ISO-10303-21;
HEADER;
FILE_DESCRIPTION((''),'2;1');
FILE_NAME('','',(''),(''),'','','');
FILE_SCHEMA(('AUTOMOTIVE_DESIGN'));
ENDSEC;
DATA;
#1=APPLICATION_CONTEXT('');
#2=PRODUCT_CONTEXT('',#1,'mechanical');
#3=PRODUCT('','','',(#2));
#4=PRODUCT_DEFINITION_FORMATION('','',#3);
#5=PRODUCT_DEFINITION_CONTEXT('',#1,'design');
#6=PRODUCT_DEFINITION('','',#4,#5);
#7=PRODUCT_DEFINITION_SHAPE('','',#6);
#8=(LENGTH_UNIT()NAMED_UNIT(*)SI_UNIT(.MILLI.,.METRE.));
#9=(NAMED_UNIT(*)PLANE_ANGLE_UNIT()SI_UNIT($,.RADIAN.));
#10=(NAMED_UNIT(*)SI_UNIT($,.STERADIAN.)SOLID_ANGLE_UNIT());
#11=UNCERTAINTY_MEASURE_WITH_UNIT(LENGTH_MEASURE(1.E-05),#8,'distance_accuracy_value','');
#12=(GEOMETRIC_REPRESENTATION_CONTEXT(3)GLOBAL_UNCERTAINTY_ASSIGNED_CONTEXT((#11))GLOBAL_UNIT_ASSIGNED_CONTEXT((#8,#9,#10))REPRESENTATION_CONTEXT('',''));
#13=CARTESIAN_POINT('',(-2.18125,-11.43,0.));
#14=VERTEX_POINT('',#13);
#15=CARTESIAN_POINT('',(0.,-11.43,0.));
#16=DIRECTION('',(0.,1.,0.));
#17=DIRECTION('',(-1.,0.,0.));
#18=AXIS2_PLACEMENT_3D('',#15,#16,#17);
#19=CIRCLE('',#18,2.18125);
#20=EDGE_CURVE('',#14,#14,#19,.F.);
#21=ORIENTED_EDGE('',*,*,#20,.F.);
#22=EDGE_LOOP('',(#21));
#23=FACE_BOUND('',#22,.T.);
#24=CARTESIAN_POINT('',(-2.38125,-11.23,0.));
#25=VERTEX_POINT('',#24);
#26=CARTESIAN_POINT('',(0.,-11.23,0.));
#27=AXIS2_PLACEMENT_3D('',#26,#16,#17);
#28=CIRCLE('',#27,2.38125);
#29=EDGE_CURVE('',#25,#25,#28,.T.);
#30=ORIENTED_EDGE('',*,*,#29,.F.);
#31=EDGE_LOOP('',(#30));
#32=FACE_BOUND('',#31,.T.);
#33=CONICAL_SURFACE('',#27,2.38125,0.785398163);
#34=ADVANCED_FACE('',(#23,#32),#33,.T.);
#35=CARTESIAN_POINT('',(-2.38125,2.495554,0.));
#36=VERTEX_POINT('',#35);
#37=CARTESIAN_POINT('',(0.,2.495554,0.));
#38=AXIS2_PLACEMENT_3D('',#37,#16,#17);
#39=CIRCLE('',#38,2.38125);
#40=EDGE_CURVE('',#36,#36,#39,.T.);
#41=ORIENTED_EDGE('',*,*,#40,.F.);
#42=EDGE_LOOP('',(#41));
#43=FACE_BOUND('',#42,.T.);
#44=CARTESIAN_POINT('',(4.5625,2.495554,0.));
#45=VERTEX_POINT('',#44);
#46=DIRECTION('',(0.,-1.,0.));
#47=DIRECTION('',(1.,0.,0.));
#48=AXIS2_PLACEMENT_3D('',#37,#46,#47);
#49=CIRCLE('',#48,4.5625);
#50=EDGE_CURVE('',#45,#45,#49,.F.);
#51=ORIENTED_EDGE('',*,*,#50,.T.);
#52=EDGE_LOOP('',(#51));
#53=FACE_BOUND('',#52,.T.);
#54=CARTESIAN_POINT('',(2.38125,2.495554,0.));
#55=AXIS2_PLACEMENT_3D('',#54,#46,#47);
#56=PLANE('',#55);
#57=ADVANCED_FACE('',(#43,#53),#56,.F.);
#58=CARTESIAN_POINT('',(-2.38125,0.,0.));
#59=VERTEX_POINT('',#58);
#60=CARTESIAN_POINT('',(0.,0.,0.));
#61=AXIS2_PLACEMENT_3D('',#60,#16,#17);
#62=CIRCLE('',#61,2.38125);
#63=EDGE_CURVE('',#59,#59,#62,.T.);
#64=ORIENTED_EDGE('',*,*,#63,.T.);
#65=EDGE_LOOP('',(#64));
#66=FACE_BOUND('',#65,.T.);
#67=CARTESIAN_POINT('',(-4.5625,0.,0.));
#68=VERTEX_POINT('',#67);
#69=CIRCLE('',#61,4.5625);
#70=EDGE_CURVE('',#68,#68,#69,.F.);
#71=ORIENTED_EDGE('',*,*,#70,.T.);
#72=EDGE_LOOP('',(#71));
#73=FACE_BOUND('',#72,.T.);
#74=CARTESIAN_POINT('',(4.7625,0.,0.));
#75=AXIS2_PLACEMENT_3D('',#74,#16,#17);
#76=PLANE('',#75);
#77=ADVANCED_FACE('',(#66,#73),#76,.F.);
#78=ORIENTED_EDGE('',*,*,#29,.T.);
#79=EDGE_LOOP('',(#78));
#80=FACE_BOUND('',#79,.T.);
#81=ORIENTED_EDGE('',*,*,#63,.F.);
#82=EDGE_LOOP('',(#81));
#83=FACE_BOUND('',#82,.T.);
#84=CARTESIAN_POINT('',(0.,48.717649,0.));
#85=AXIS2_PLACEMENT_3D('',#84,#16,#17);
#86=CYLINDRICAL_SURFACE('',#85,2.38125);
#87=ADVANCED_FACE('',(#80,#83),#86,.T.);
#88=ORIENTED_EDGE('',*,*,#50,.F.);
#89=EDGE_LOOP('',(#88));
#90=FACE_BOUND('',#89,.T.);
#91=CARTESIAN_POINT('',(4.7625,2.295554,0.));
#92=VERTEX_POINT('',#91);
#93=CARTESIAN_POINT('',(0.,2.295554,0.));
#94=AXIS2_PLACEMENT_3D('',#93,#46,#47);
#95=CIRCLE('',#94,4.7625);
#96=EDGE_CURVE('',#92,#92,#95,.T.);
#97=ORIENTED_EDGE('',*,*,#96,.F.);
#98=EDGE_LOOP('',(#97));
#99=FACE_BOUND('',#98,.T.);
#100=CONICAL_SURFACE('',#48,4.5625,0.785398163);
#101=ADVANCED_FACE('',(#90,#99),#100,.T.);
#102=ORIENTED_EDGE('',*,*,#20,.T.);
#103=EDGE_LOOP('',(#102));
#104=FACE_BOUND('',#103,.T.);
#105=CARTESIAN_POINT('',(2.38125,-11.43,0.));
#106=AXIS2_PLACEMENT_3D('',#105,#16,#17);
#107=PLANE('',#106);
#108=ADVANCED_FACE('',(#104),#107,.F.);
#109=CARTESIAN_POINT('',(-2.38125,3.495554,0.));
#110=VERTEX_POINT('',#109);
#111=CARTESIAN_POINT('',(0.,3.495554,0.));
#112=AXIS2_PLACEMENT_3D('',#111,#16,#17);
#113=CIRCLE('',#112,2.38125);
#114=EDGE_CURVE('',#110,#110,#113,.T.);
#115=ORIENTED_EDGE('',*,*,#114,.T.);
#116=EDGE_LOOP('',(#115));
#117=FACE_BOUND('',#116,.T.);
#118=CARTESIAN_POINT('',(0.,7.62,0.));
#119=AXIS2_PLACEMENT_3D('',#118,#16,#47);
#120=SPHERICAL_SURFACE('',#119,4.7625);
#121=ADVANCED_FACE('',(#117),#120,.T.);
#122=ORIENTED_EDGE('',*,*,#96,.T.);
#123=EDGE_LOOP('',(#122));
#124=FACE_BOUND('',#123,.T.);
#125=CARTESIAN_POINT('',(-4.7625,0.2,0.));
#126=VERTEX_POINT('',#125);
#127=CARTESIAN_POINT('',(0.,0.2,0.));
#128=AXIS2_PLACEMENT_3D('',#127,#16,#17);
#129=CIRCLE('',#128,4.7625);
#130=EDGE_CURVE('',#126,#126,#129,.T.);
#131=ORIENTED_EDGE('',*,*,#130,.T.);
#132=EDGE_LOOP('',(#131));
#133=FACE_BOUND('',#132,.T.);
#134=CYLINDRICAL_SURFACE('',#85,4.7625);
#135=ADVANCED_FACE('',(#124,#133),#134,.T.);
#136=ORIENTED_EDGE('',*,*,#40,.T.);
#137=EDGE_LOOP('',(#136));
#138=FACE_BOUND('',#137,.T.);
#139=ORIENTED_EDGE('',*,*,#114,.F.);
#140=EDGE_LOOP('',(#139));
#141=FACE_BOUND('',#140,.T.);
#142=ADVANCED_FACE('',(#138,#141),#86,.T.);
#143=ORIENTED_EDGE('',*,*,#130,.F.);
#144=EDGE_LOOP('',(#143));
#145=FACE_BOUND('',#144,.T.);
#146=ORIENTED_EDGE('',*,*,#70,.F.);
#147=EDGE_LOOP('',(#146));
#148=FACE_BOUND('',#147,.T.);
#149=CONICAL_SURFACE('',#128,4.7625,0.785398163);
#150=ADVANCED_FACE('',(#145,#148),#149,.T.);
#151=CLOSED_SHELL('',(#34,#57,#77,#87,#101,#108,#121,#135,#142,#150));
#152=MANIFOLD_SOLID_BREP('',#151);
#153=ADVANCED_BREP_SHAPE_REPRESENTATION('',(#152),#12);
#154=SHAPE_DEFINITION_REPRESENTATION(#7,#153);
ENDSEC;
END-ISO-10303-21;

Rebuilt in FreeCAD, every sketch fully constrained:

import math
import FreeCAD as App
import Part
import Sketcher
from FreeCAD import Vector
Q = App.Units.Quantity


def edges_at(feature, points):
    """Names of the edges that pass closest to the given points."""
    edges = feature.Shape.Edges
    near = lambda p: min(range(len(edges)), key=lambda i: edges[i].distToShape(Part.Vertex(*p))[0])
    return sorted({f"Edge{near(p) + 1}" for p in points})

doc = App.newDocument("Part")
body = doc.addObject("PartDesign::Body", "Body")

# Sketch on XY plane
sketch1 = body.newObject("Sketcher::SketchObject", "Sketch")
sketch1.AttachmentSupport = (doc.getObject("XY_Plane"), [""])
sketch1.MapMode = "FlatFace"
sketch1.addGeometry([
    Part.LineSegment(Vector(2.4, 2.5, 0), Vector(2.4, 3.5, 0)),  # 0
    Part.ArcOfCircle(Part.Circle(Vector(0, 7.6, 0), Vector(0, 0, 1), 4.8), math.radians(-60), math.radians(90)),  # 1
    Part.LineSegment(Vector(0, 12.4, 0), Vector(0, -11.4, 0)),  # 2
    Part.LineSegment(Vector(0, -11.4, 0), Vector(2.4, -11.4, 0)),  # 3
    Part.LineSegment(Vector(2.4, -11.4, 0), Vector(2.4, 0, 0)),  # 4
    Part.LineSegment(Vector(2.4, 0, 0), Vector(4.8, 0, 0)),  # 5
    Part.LineSegment(Vector(4.8, 0, 0), Vector(4.8, 2.5, 0)),  # 6
    Part.LineSegment(Vector(4.8, 2.5, 0), Vector(2.4, 2.5, 0)),  # 7
], False)
sketch1.addConstraint([
    Sketcher.Constraint("Coincident", 0, 2, 1, 1),
    Sketcher.Constraint("Coincident", 1, 2, 2, 1),
    Sketcher.Constraint("Coincident", 2, 2, 3, 1),
    Sketcher.Constraint("Coincident", 3, 2, 4, 1),
    Sketcher.Constraint("Coincident", 4, 2, 5, 1),
    Sketcher.Constraint("Coincident", 5, 2, 6, 1),
    Sketcher.Constraint("Coincident", 6, 2, 7, 1),
    Sketcher.Constraint("Coincident", 7, 2, 0, 1),
    Sketcher.Constraint("Vertical", 0),
    Sketcher.Constraint("Vertical", 2),
    Sketcher.Constraint("Horizontal", 3),
    Sketcher.Constraint("Vertical", 4),
    Sketcher.Constraint("Horizontal", 5),
    Sketcher.Constraint("Vertical", 6),
    Sketcher.Constraint("Horizontal", 7),
    Sketcher.Constraint("PointOnObject", 1, 3, -2),
    Sketcher.Constraint("PointOnObject", 1, 2, -2),
    Sketcher.Constraint("PointOnObject", 4, 2, -1),
    Sketcher.Constraint("Vertical", 0, 2, 3, 2),
    Sketcher.Constraint("Equal", 3, 5),
    Sketcher.Constraint("Radius", 1, Q("0.1875 in")),
    Sketcher.Constraint("DistanceY", 4, 1, 4, 2, Q("0.45 in")),
    Sketcher.Constraint("DistanceY", -1, 1, 1, 3, Q("0.3 in")),
    Sketcher.Constraint("DistanceX", 3, 1, 3, 2, Q("0.09375 in")),
    Sketcher.Constraint("DistanceY", 0, 1, 0, 2, 1.0),
])
revolution = body.newObject("PartDesign::Revolution", "Revolution")
revolution.Profile = sketch1
revolution.ReferenceAxis = (sketch1, ["V_Axis"])
revolution.Angle = 360
doc.recompute()

chamfer = body.newObject("PartDesign::Chamfer", "Chamfer")
chamfer.Base = (revolution, edges_at(revolution, [(2.381, -11.43, 0), (4.763, 0, 0), (4.763, 2.496, 0)]))
chamfer.Size = 0.2

doc.recompute()
